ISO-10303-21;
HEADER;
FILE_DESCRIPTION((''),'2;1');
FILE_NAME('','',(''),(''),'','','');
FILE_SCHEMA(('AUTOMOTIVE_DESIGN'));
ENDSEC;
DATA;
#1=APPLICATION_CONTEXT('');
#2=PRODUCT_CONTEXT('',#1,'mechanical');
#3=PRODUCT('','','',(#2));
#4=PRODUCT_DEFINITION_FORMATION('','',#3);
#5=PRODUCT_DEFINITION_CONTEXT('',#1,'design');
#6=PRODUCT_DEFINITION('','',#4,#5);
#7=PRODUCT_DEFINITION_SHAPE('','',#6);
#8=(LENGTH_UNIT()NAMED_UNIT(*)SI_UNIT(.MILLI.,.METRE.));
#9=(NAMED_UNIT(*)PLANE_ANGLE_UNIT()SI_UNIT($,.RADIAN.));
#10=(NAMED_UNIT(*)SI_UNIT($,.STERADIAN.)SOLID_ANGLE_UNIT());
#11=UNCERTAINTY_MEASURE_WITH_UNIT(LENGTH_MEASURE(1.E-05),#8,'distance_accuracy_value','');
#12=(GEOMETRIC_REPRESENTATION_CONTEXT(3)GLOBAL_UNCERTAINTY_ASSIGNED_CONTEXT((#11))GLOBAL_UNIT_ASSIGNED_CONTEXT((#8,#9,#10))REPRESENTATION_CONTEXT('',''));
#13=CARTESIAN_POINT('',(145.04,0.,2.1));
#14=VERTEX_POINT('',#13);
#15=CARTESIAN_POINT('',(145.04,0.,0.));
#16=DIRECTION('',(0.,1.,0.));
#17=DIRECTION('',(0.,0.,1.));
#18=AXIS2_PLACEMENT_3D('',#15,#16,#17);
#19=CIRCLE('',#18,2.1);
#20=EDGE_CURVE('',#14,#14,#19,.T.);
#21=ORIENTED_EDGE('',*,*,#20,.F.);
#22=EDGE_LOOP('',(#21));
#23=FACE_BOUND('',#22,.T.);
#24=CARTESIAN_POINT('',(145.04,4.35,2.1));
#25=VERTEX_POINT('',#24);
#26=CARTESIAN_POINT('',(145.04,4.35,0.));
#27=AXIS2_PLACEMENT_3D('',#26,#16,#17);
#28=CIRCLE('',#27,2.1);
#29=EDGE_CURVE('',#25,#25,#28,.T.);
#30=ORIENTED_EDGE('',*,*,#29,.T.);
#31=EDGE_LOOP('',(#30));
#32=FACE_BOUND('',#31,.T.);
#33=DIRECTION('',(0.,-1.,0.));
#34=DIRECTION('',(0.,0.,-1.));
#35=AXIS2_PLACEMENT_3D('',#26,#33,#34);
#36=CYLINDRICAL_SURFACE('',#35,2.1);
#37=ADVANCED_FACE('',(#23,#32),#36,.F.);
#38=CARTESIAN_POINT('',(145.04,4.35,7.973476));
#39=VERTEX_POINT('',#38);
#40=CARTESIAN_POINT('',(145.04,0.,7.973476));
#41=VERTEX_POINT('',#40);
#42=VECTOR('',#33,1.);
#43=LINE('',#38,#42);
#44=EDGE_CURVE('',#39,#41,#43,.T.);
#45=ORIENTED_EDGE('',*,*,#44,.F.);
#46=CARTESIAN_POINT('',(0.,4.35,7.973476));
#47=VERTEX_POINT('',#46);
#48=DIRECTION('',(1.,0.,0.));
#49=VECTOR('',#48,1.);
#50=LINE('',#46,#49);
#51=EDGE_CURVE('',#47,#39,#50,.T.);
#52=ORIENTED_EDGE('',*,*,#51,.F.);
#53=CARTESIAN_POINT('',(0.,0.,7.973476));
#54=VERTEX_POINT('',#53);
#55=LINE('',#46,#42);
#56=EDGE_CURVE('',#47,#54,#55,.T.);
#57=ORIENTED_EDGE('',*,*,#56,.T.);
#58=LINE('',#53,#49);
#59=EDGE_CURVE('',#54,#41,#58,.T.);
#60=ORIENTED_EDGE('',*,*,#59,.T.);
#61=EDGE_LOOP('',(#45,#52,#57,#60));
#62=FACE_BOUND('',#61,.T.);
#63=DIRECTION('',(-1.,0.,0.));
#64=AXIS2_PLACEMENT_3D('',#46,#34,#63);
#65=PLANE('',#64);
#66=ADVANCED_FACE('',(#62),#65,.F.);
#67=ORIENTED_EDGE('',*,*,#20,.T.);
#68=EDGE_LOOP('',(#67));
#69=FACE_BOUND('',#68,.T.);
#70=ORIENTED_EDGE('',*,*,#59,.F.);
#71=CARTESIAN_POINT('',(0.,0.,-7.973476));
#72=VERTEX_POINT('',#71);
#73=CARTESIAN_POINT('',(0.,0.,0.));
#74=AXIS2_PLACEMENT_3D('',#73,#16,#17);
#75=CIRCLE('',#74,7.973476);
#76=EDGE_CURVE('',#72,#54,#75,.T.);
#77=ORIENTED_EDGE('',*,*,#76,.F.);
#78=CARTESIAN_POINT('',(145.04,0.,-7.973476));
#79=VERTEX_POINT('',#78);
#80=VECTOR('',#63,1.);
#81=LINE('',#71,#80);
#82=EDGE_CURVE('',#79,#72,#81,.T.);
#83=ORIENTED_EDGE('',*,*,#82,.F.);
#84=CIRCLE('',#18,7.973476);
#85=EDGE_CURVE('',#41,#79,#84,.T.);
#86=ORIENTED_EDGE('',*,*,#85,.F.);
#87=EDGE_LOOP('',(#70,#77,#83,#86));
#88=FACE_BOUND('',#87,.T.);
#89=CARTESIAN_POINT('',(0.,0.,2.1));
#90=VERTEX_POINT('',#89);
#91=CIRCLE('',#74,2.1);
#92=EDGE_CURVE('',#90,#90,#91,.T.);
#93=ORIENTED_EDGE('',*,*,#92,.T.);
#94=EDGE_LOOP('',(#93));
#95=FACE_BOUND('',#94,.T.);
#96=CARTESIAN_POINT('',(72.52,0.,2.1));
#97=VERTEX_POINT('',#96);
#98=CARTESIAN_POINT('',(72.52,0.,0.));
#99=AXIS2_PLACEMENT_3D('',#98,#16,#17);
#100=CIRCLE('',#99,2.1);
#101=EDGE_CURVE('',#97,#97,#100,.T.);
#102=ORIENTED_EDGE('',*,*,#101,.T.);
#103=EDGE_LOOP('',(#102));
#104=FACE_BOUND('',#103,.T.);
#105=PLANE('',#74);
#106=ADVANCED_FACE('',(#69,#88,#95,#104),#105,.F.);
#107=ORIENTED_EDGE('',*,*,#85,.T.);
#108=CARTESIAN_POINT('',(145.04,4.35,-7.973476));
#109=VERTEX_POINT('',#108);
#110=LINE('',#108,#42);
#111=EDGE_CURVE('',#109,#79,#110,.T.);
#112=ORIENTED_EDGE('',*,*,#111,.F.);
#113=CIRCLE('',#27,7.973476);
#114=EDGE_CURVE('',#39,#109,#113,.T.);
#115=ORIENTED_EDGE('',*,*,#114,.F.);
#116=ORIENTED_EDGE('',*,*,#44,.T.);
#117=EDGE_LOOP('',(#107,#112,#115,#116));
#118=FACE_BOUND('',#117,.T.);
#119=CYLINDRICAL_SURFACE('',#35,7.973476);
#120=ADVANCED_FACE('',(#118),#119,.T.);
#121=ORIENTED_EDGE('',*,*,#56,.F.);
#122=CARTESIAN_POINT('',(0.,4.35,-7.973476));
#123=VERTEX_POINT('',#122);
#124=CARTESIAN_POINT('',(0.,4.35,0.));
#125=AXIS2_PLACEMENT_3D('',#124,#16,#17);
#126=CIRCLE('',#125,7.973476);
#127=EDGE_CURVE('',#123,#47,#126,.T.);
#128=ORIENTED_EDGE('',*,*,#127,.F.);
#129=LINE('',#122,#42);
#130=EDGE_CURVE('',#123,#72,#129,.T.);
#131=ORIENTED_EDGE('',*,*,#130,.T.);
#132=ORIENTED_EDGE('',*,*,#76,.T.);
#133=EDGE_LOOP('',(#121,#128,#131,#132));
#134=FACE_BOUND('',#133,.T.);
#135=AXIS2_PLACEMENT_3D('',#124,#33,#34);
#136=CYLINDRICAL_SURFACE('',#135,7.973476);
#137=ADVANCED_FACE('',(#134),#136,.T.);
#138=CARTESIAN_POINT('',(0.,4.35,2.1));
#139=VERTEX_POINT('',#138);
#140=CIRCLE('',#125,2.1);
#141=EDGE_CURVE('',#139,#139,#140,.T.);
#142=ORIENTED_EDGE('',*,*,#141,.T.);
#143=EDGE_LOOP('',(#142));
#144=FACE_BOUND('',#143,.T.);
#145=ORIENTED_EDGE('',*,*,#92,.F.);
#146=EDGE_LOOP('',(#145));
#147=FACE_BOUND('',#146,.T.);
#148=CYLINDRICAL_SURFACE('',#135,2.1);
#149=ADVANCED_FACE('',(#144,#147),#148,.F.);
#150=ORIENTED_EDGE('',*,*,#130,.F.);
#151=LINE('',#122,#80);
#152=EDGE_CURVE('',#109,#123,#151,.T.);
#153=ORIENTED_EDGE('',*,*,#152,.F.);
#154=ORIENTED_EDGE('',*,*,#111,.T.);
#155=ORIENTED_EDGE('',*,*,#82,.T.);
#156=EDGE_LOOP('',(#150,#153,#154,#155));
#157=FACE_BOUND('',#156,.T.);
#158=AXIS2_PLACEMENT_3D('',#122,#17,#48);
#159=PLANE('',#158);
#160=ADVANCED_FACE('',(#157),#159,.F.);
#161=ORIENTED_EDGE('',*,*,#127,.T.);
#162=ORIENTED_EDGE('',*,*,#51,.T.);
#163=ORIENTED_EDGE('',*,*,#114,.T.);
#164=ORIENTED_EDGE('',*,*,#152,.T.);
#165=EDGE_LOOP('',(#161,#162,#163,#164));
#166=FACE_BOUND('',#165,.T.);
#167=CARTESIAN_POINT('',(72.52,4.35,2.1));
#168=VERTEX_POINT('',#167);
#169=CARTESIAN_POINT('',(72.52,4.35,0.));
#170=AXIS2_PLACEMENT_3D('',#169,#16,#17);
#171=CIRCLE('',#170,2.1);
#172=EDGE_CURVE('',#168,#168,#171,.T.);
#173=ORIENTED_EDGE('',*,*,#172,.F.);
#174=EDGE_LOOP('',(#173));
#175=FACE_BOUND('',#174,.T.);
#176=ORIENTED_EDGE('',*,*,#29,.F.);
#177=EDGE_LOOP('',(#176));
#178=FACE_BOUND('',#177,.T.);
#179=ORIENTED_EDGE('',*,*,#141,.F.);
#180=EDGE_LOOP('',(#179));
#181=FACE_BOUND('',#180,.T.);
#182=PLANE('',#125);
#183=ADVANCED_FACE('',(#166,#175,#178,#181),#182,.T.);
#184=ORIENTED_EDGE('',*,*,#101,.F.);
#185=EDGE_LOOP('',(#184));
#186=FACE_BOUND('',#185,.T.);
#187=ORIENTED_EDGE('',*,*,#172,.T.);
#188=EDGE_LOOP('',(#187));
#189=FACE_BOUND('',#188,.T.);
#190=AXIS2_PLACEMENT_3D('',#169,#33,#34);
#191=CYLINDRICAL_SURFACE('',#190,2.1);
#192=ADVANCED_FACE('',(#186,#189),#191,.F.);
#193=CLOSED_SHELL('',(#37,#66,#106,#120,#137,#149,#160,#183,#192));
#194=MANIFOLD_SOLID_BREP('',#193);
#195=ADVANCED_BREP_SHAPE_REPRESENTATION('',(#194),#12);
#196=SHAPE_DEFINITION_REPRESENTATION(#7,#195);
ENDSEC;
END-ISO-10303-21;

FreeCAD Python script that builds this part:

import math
import FreeCAD as App
import Part
import Sketcher

doc = App.newDocument("Part")
body = doc.addObject("PartDesign::Body", "Body")

sketch1 = body.newObject("Sketcher::SketchObject", "Sketch")
sketch1.AttachmentSupport = (doc.getObject("XZ_Plane"), [""])
sketch1.MapMode = "FlatFace"
sketch1.addGeometry([
    Part.LineSegment(App.Vector(145, -8, 0), App.Vector(0, -8, 0)),
    Part.ArcOfCircle(Part.Circle(App.Vector(0, 0, 0), App.Vector(0, 0, 1), 8), math.radians(90), math.radians(270)),
    Part.LineSegment(App.Vector(0, 8, 0), App.Vector(145, 8, 0)),
    Part.ArcOfCircle(Part.Circle(App.Vector(145, 0, 0), App.Vector(0, 0, 1), 8), math.radians(-90), math.radians(90)),
    Part.Circle(App.Vector(145, 0, 0), App.Vector(0, 0, 1), 2.1),
    Part.Circle(App.Vector(72.5, 0, 0), App.Vector(0, 0, 1), 2.1),
    Part.Circle(App.Vector(0, 0, 0), App.Vector(0, 0, 1), 2.1),
], False)
sketch1.addConstraint([
    Sketcher.Constraint("Tangent", 0, 2, 1, 2),
    Sketcher.Constraint("Tangent", 1, 1, 2, 1),
    Sketcher.Constraint("Tangent", 2, 2, 3, 2),
    Sketcher.Constraint("Tangent", 3, 1, 0, 1),
    Sketcher.Constraint("Horizontal", 0),
    Sketcher.Constraint("Horizontal", 2),
    Sketcher.Constraint("Coincident", 1, 3, -1, 1),
    Sketcher.Constraint("Coincident", 6, 3, -1, 1),
    Sketcher.Constraint("Coincident", 4, 3, 3, 3),
    Sketcher.Constraint("Equal", 4, 5),
    Sketcher.Constraint("Equal", 5, 6),
    Sketcher.Constraint("PointOnObject", 5, 3, -1),
    Sketcher.Constraint("Diameter", 4, 4.2),
    Sketcher.Constraint("DistanceX", 0, 2, 0, 1, 145.04),
    Sketcher.Constraint("DistanceX", -1, 1, 5, 3, 72.52),
    Sketcher.Constraint("Radius", 1, 7.973476),
])
pad1 = body.newObject("PartDesign::Pad", "Pad")
pad1.Profile = sketch1
pad1.Length = 4.35
pad1.Reversed = True

doc.recompute()
